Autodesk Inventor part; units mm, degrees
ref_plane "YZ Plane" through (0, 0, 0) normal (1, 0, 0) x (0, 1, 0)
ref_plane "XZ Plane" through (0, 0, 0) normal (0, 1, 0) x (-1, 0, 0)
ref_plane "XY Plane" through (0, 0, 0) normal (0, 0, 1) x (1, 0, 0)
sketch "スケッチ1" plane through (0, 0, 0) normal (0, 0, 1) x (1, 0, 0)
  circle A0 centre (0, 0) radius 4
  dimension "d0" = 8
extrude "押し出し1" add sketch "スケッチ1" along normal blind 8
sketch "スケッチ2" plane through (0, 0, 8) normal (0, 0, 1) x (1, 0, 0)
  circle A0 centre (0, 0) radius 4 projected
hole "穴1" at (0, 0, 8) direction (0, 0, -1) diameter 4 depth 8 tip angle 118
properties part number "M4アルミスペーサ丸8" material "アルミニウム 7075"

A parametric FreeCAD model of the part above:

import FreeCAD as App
import Part
import Sketcher

V = App.Vector
Q = App.Units.Quantity

doc = App.newDocument("Part")
body = doc.addObject("PartDesign::Body", "Body")

# Sketch on XY plane
sketch1 = doc.addObject("Sketcher::SketchObject", "Sketch")
body.addObject(sketch1)
sketch1.AttachmentSupport = (doc.XY_Plane, [""])
sketch1.MapMode = "FlatFace"
sketch1.addGeometry(Part.Circle(V(0, 0, 0), V(0, 0, 1), 4), False)
sketch1.addConstraint([
    Sketcher.Constraint("Coincident", 0, 3, -1, 1),
    Sketcher.Constraint("Diameter", 0, Q("8 mm")),
])
pad1 = doc.addObject("PartDesign::Pad", "Pad")
body.addObject(pad1)
pad1.Profile = sketch1
pad1.Length = 8

# Sketch on XY plane
sketch2 = doc.addObject("Sketcher::SketchObject", "Sketch001")
body.addObject(sketch2)
sketch2.AttachmentSupport = (doc.XY_Plane, [""])
sketch2.MapMode = "FlatFace"
sketch2.AttachmentOffset = App.Placement(V(0, 0, 8), App.Rotation())
sketch2.addGeometry(Part.Circle(V(0, 0, 0), V(0, 0, 1), 2), False)
sketch2.addConstraint([
    Sketcher.Constraint("Coincident", 0, 3, -1, 1),
    Sketcher.Constraint("Diameter", 0, Q("4 mm")),
])
doc.recompute()
hole = doc.addObject("PartDesign::Hole", "Hole")
body.addObject(hole)
hole.Profile = sketch2
hole.ThreadType = "None"
hole.Diameter = 4
hole.DepthType = "Dimension"
hole.Depth = 8
hole.DrillPoint = "Angled"
hole.DrillPointAngle = 118

doc.recompute()
